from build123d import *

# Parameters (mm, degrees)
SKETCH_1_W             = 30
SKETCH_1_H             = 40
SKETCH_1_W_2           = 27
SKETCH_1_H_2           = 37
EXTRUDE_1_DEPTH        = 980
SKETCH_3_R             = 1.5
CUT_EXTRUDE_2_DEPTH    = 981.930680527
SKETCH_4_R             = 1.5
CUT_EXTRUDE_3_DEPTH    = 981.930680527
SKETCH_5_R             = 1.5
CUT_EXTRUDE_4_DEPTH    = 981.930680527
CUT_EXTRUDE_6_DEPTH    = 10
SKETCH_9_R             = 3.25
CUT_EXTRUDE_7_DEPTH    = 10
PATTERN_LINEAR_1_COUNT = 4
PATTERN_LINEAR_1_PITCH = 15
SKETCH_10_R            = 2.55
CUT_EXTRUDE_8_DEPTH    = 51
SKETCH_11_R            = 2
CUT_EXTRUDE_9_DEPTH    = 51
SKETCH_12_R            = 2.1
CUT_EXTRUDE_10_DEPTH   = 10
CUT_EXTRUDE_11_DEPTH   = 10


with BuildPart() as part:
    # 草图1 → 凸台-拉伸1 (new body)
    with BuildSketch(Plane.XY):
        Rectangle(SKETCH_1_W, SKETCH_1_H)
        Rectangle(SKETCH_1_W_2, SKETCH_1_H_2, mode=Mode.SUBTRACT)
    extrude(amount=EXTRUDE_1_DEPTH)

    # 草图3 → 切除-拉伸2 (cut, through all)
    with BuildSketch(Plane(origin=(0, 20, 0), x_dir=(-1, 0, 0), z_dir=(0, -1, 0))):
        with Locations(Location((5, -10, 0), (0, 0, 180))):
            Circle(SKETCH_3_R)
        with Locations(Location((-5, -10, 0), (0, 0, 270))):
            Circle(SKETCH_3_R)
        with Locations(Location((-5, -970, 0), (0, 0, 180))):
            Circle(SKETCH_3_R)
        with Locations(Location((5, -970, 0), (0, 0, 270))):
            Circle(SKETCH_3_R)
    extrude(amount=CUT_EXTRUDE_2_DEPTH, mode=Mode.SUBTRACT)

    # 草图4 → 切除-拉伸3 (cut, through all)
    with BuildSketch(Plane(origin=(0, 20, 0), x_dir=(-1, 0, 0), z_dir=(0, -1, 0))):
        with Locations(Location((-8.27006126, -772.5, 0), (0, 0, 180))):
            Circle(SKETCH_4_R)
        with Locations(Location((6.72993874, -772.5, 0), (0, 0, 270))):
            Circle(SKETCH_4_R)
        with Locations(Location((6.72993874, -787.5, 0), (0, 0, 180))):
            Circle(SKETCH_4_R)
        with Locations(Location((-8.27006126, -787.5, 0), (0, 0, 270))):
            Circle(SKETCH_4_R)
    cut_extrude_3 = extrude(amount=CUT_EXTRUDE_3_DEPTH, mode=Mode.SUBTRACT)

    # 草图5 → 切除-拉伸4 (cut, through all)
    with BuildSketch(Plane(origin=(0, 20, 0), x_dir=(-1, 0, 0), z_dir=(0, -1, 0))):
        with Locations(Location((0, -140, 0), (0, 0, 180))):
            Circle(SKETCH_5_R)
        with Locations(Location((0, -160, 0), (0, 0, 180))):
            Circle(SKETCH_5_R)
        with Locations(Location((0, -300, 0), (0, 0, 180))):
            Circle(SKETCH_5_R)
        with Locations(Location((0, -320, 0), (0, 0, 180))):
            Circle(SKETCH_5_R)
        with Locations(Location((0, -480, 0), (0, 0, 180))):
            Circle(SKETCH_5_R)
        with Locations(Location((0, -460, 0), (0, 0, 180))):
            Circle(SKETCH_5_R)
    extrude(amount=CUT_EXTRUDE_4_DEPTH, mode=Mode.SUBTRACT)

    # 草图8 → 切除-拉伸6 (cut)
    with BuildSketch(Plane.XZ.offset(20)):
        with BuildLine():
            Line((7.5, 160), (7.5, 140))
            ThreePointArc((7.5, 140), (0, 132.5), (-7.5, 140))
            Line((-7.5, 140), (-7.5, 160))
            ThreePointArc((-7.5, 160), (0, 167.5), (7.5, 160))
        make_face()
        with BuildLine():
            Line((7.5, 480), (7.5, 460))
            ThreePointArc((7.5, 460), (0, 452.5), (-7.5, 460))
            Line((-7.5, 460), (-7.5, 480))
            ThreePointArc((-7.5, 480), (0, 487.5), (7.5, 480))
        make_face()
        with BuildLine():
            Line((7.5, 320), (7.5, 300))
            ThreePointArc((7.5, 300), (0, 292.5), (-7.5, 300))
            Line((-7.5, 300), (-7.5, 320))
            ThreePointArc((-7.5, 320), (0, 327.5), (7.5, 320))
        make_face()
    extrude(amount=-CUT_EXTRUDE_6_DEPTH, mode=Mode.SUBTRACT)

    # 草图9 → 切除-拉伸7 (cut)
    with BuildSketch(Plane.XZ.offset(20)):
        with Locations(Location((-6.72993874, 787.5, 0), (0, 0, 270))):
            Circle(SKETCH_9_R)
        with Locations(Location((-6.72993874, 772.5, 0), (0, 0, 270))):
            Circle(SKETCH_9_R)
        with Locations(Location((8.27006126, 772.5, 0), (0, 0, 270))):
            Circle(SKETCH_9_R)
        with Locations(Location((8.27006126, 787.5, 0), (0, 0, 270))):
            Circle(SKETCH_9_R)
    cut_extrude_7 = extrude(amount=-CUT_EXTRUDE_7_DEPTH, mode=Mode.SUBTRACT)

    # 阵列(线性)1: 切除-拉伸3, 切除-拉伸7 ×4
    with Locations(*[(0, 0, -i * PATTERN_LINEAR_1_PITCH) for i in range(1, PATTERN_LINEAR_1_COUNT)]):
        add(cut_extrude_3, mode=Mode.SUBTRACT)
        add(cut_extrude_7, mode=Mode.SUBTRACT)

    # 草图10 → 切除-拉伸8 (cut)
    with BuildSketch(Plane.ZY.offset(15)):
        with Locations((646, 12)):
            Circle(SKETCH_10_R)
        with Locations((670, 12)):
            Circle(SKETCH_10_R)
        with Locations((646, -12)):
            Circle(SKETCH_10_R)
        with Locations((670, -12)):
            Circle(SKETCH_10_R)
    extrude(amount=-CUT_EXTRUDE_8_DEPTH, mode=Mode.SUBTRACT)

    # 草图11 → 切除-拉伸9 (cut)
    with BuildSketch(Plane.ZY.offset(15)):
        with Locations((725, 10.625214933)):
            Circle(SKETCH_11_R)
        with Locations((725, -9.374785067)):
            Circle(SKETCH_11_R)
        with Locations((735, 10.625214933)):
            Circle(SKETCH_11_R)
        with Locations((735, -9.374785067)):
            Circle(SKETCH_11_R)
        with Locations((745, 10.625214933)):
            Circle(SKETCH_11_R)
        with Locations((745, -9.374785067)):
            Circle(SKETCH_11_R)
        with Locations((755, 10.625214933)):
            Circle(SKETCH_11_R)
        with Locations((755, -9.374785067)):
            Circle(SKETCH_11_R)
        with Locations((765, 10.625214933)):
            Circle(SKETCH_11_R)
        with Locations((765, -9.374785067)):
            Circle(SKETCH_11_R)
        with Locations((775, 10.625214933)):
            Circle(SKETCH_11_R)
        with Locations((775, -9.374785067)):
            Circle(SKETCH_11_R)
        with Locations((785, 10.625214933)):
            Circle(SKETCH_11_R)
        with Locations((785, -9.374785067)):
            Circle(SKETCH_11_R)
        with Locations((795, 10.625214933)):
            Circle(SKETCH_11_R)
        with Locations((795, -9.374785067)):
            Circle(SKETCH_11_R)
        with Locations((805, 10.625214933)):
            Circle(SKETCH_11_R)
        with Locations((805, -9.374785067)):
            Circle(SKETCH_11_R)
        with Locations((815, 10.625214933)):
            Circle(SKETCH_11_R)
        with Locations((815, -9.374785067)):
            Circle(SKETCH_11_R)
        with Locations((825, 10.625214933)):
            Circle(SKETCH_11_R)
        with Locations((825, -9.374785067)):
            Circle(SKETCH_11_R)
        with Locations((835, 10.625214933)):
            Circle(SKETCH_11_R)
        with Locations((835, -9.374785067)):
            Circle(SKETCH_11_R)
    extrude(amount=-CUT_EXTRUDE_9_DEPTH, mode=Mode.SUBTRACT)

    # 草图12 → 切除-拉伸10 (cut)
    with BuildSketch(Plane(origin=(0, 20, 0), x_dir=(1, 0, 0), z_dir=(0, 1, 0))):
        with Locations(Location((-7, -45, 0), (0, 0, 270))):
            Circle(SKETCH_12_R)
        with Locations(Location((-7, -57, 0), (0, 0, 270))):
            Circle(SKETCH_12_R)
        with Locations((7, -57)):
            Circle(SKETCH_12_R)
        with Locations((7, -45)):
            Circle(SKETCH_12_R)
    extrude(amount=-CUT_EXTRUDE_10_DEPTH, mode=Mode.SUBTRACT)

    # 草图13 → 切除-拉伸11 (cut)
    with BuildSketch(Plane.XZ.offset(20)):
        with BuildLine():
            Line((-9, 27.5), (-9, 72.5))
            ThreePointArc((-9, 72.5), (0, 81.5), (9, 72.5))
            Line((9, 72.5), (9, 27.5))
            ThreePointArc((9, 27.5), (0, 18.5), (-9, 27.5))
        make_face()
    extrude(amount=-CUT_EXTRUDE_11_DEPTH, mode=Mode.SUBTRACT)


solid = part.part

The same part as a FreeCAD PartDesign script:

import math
import FreeCAD as App
import Part
import Sketcher

V = App.Vector
Q = App.Units.Quantity


def add_polygon(sketch, points):
    """Adds a closed chain of lines whose ends are joined by coincident constraints."""
    first, n = sketch.GeometryCount, len(points)
    for a, b in zip(points, points[1:] + points[:1]):
        sketch.addGeometry(Part.LineSegment(App.Vector(*a, 0), App.Vector(*b, 0)), False)
    for i in range(n):
        sketch.addConstraint(Sketcher.Constraint("Coincident", first + i, 2, first + (i + 1) % n, 1))

doc = App.newDocument("Part")
params = doc.addObject("Spreadsheet::Sheet", "Params")
for row, (alias, value) in enumerate([
    ("sketch1_width", "30 mm"),
    ("sketch1_width2", "27 mm"),
    ("sketch1_height", "40 mm"),
    ("sketch1_height2", "37 mm"),
    ("pad1_length", "980 mm"),
    ("sketch2_diameter", "3 mm"),
    ("sketch3_diameter", "3 mm"),
    ("sketch4_diameter", "3 mm"),
    ("sketch5_radius", "7.5 mm"),
    ("sketch5_height", "20 mm"),
    ("pocket4_length", "10 mm"),
    ("sketch6_diameter", "6.5 mm"),
    ("pocket5_length", "10 mm"),
    ("linearpattern_pitch", "15 mm"),
    ("sketch7_diameter", "5.1 mm"),
    ("pocket6_length", "51 mm"),
    ("sketch8_diameter", "4 mm"),
    ("pocket7_length", "51 mm"),
    ("sketch9_diameter", "4.2 mm"),
    ("pocket8_length", "10 mm"),
    ("sketch10_radius", "9 mm"),
    ("sketch10_height", "45 mm"),
    ("pocket9_length", "10 mm"),
], start=1):
    params.set(f"A{row}", alias)
    params.set(f"B{row}", "=" + value)
    params.setAlias(f"B{row}", alias)

body = doc.addObject("PartDesign::Body", "Body")

# Sketch on XY plane
sketch1 = body.newObject("Sketcher::SketchObject", "Sketch")
sketch1.AttachmentSupport = (doc.getObject("XY_Plane"), [""])
sketch1.MapMode = "FlatFace"
add_polygon(sketch1, [(-15, 20), (-15, -20), (15, -20), (15, 20)])  # lines 0-3
add_polygon(sketch1, [(14, -18), (-14, -18), (-14, 18), (14, 18)])  # lines 4-7
sketch1.addConstraint(Sketcher.Constraint("Vertical", 0))
sketch1.addConstraint(Sketcher.Constraint("Horizontal", 1))
sketch1.addConstraint(Sketcher.Constraint("Vertical", 2))
sketch1.addConstraint(Sketcher.Constraint("Horizontal", 3))
sketch1.addConstraint(Sketcher.Constraint("Horizontal", 4))
sketch1.addConstraint(Sketcher.Constraint("Vertical", 5))
sketch1.addConstraint(Sketcher.Constraint("Horizontal", 6))
sketch1.addConstraint(Sketcher.Constraint("Vertical", 7))
sketch1.addConstraint(Sketcher.Constraint("Symmetric", 0, 2, 2, 2, -1, 1))
sketch1.addConstraint(Sketcher.Constraint("Symmetric", 4, 2, 6, 2, -1, 1))
sketch1.addConstraint(Sketcher.Constraint("DistanceX", 1, 1, 1, 2, Q("30 mm")))
sketch1.addConstraint(Sketcher.Constraint("DistanceX", 4, 2, 4, 1, Q("27 mm")))
sketch1.addConstraint(Sketcher.Constraint("DistanceY", 0, 2, 0, 1, Q("40 mm")))
sketch1.addConstraint(Sketcher.Constraint("DistanceY", 5, 1, 5, 2, Q("37 mm")))
sketch1.setExpression("Constraints[18]", "Params.sketch1_width")
sketch1.setExpression("Constraints[19]", "Params.sketch1_width2")
sketch1.setExpression("Constraints[20]", "Params.sketch1_height")
sketch1.setExpression("Constraints[21]", "Params.sketch1_height2")
pad1 = body.newObject("PartDesign::Pad", "Pad")
pad1.Profile = sketch1
pad1.setExpression("Length", "Params.pad1_length")

# Sketch on XZ plane
sketch2 = body.newObject("Sketcher::SketchObject", "Sketch001")
sketch2.AttachmentSupport = (doc.getObject("XZ_Plane"), [""])
sketch2.MapMode = "FlatFace"
sketch2.AttachmentOffset = App.Placement(V(0, 0, -20), App.Rotation())
sketch2.addGeometry(Part.Circle(V(-5, 10, 0), V(0, 0, 1), 1.5), False)
sketch2.addGeometry(Part.Circle(V(5, 10, 0), V(0, 0, 1), 1.5), False)
sketch2.addGeometry(Part.Circle(V(5, 970, 0), V(0, 0, 1), 1.5), False)
sketch2.addGeometry(Part.Circle(V(-5, 970, 0), V(0, 0, 1), 1.5), False)
sketch2.addConstraint(Sketcher.Constraint("Equal", 0, 1))
sketch2.addConstraint(Sketcher.Constraint("Equal", 1, 2))
sketch2.addConstraint(Sketcher.Constraint("Equal", 2, 3))
sketch2.addConstraint(Sketcher.Constraint("Symmetric", 0, 3, 1, 3, -2))
sketch2.addConstraint(Sketcher.Constraint("Symmetric", 2, 3, 3, 3, -2))
sketch2.addConstraint(Sketcher.Constraint("Vertical", 1, 3, 2, 3))
sketch2.addConstraint(Sketcher.Constraint("Diameter", 0, Q("3 mm")))
sketch2.addConstraint(Sketcher.Constraint("DistanceX", 0, 3, -1, 1, Q("5 mm")))
sketch2.addConstraint(Sketcher.Constraint("DistanceY", -1, 1, 0, 3, Q("10 mm")))
sketch2.addConstraint(Sketcher.Constraint("DistanceY", -1, 1, 2, 3, Q("970 mm")))
sketch2.setExpression("Constraints[6]", "Params.sketch2_diameter")
pocket1 = body.newObject("PartDesign::Pocket", "Pocket")
pocket1.Profile = sketch2
pocket1.Type = "ThroughAll"
pocket1.Reversed = True

# Sketch on XZ plane
sketch3 = body.newObject("Sketcher::SketchObject", "Sketch002")
sketch3.AttachmentSupport = (doc.getObject("XZ_Plane"), [""])
sketch3.MapMode = "FlatFace"
sketch3.AttachmentOffset = App.Placement(V(0, 0, -20), App.Rotation())
sketch3.addGeometry(Part.Circle(V(8.3, 772.5, 0), V(0, 0, 1), 1.5), False)
sketch3.addGeometry(Part.Circle(V(-6.7, 772.5, 0), V(0, 0, 1), 1.5), False)
sketch3.addGeometry(Part.Circle(V(-6.7, 787.5, 0), V(0, 0, 1), 1.5), False)
sketch3.addGeometry(Part.Circle(V(8.3, 787.5, 0), V(0, 0, 1), 1.5), False)
sketch3.addConstraint(Sketcher.Constraint("Equal", 0, 1))
sketch3.addConstraint(Sketcher.Constraint("Equal", 1, 2))
sketch3.addConstraint(Sketcher.Constraint("Equal", 2, 3))
sketch3.addConstraint(Sketcher.Constraint("Horizontal", 0, 3, 1, 3))
sketch3.addConstraint(Sketcher.Constraint("Horizontal", 2, 3, 3, 3))
sketch3.addConstraint(Sketcher.Constraint("Vertical", 1, 3, 2, 3))
sketch3.addConstraint(Sketcher.Constraint("Vertical", 0, 3, 3, 3))
sketch3.addConstraint(Sketcher.Constraint("Diameter", 0, Q("3 mm")))
sketch3.addConstraint(Sketcher.Constraint("DistanceX", 1, 3, 0, 3, Q("15 mm")))
sketch3.addConstraint(Sketcher.Constraint("DistanceY", 1, 3, 2, 3, Q("15 mm")))
sketch3.addConstraint(Sketcher.Constraint("DistanceY", -1, 1, 0, 3, Q("772.5 mm")))
sketch3.addConstraint(Sketcher.Constraint("DistanceX", -1, 1, 0, 3, Q("8.270061 mm")))
sketch3.setExpression("Constraints[7]", "Params.sketch3_diameter")
pocket2 = body.newObject("PartDesign::Pocket", "Pocket001")
pocket2.Profile = sketch3
pocket2.Type = "ThroughAll"
pocket2.Reversed = True

# Sketch on XZ plane
sketch4 = body.newObject("Sketcher::SketchObject", "Sketch003")
sketch4.AttachmentSupport = (doc.getObject("XZ_Plane"), [""])
sketch4.MapMode = "FlatFace"
sketch4.AttachmentOffset = App.Placement(V(0, 0, -20), App.Rotation())
sketch4.addGeometry(Part.Circle(V(0, 140, 0), V(0, 0, 1), 1.5), False)
sketch4.addGeometry(Part.Circle(V(0, 160, 0), V(0, 0, 1), 1.5), False)
sketch4.addGeometry(Part.Circle(V(0, 300, 0), V(0, 0, 1), 1.5), False)
sketch4.addGeometry(Part.Circle(V(0, 320, 0), V(0, 0, 1), 1.5), False)
sketch4.addGeometry(Part.Circle(V(0, 480, 0), V(0, 0, 1), 1.5), False)
sketch4.addGeometry(Part.Circle(V(0, 460, 0), V(0, 0, 1), 1.5), False)
sketch4.addConstraint(Sketcher.Constraint("Equal", 0, 1))
sketch4.addConstraint(Sketcher.Constraint("Equal", 1, 2))
sketch4.addConstraint(Sketcher.Constraint("Equal", 2, 3))
sketch4.addConstraint(Sketcher.Constraint("Equal", 3, 4))
sketch4.addConstraint(Sketcher.Constraint("Equal", 4, 5))
sketch4.addConstraint(Sketcher.Constraint("PointOnObject", 0, 3, -2))
sketch4.addConstraint(Sketcher.Constraint("PointOnObject", 1, 3, -2))
sketch4.addConstraint(Sketcher.Constraint("PointOnObject", 2, 3, -2))
sketch4.addConstraint(Sketcher.Constraint("PointOnObject", 3, 3, -2))
sketch4.addConstraint(Sketcher.Constraint("PointOnObject", 4, 3, -2))
sketch4.addConstraint(Sketcher.Constraint("PointOnObject", 5, 3, -2))
sketch4.addConstraint(Sketcher.Constraint("Diameter", 0, Q("3 mm")))
sketch4.addConstraint(Sketcher.Constraint("DistanceY", -1, 1, 0, 3, Q("140 mm")))
sketch4.addConstraint(Sketcher.Constraint("DistanceY", -1, 1, 1, 3, Q("160 mm")))
sketch4.addConstraint(Sketcher.Constraint("DistanceY", -1, 1, 2, 3, Q("300 mm")))
sketch4.addConstraint(Sketcher.Constraint("DistanceY", -1, 1, 3, 3, Q("320 mm")))
sketch4.addConstraint(Sketcher.Constraint("DistanceY", -1, 1, 4, 3, Q("480 mm")))
sketch4.addConstraint(Sketcher.Constraint("DistanceY", -1, 1, 5, 3, Q("460 mm")))
sketch4.setExpression("Constraints[11]", "Params.sketch4_diameter")
pocket3 = body.newObject("PartDesign::Pocket", "Pocket002")
pocket3.Profile = sketch4
pocket3.Type = "ThroughAll"
pocket3.Reversed = True

# Sketch on XZ plane
sketch5 = body.newObject("Sketcher::SketchObject", "Sketch004")
sketch5.AttachmentSupport = (doc.getObject("XZ_Plane"), [""])
sketch5.MapMode = "FlatFace"
sketch5.AttachmentOffset = App.Placement(V(0, 0, 20), App.Rotation())
sketch5.addGeometry(Part.LineSegment(V(8, 140, 0), V(8, 160, 0)), False)
sketch5.addGeometry(Part.ArcOfCircle(Part.Circle(V(0, 160, 0), V(0, 0, 1), 8), math.radians(0), math.radians(180)), False)
sketch5.addGeometry(Part.LineSegment(V(-8, 160, 0), V(-8, 140, 0)), False)
sketch5.addGeometry(Part.ArcOfCircle(Part.Circle(V(0, 140, 0), V(0, 0, 1), 8), math.radians(180), math.radians(360)), False)
sketch5.addGeometry(Part.LineSegment(V(8, 460, 0), V(8, 480, 0)), False)
sketch5.addGeometry(Part.ArcOfCircle(Part.Circle(V(0, 480, 0), V(0, 0, 1), 8), math.radians(0), math.radians(180)), False)
sketch5.addGeometry(Part.LineSegment(V(-8, 480, 0), V(-8, 460, 0)), False)
sketch5.addGeometry(Part.ArcOfCircle(Part.Circle(V(0, 460, 0), V(0, 0, 1), 8), math.radians(180), math.radians(360)), False)
sketch5.addGeometry(Part.LineSegment(V(8, 300, 0), V(8, 320, 0)), False)
sketch5.addGeometry(Part.ArcOfCircle(Part.Circle(V(0, 320, 0), V(0, 0, 1), 8), math.radians(0), math.radians(180)), False)
sketch5.addGeometry(Part.LineSegment(V(-8, 320, 0), V(-8, 300, 0)), False)
sketch5.addGeometry(Part.ArcOfCircle(Part.Circle(V(0, 300, 0), V(0, 0, 1), 8), math.radians(180), math.radians(360)), False)
sketch5.addConstraint(Sketcher.Constraint("Tangent", 0, 2, 1, 1))
sketch5.addConstraint(Sketcher.Constraint("Tangent", 1, 2, 2, 1))
sketch5.addConstraint(Sketcher.Constraint("Tangent", 2, 2, 3, 1))
sketch5.addConstraint(Sketcher.Constraint("Tangent", 3, 2, 0, 1))
sketch5.addConstraint(Sketcher.Constraint("Tangent", 4, 2, 5, 1))
sketch5.addConstraint(Sketcher.Constraint("Tangent", 5, 2, 6, 1))
sketch5.addConstraint(Sketcher.Constraint("Tangent", 6, 2, 7, 1))
sketch5.addConstraint(Sketcher.Constraint("Tangent", 7, 2, 4, 1))
sketch5.addConstraint(Sketcher.Constraint("Tangent", 8, 2, 9, 1))
sketch5.addConstraint(Sketcher.Constraint("Tangent", 9, 2, 10, 1))
sketch5.addConstraint(Sketcher.Constraint("Tangent", 10, 2, 11, 1))
sketch5.addConstraint(Sketcher.Constraint("Tangent", 11, 2, 8, 1))
sketch5.addConstraint(Sketcher.Constraint("Vertical", 0))
sketch5.addConstraint(Sketcher.Constraint("Vertical", 2))
sketch5.addConstraint(Sketcher.Constraint("Vertical", 4))
sketch5.addConstraint(Sketcher.Constraint("Vertical", 6))
sketch5.addConstraint(Sketcher.Constraint("Vertical", 8))
sketch5.addConstraint(Sketcher.Constraint("Vertical", 10))
sketch5.addConstraint(Sketcher.Constraint("Equal", 3, 5))
sketch5.addConstraint(Sketcher.Constraint("Equal", 7, 9))
sketch5.addConstraint(Sketcher.Constraint("PointOnObject", 1, 3, -2))
sketch5.addConstraint(Sketcher.Constraint("PointOnObject", 5, 3, -2))
sketch5.addConstraint(Sketcher.Constraint("PointOnObject", 9, 3, -2))
sketch5.addConstraint(Sketcher.Constraint("Equal", 2, 4))
sketch5.addConstraint(Sketcher.Constraint("Equal", 6, 8))
sketch5.addConstraint(Sketcher.Constraint("Radius", 1, Q("7.5 mm")))
sketch5.addConstraint(Sketcher.Constraint("DistanceY", 0, 1, 0, 2, Q("20 mm")))
sketch5.addConstraint(Sketcher.Constraint("DistanceY", -1, 1, 1, 3, Q("160 mm")))
sketch5.addConstraint(Sketcher.Constraint("DistanceY", -1, 1, 5, 3, Q("480 mm")))
sketch5.addConstraint(Sketcher.Constraint("DistanceY", -1, 1, 9, 3, Q("320 mm")))
sketch5.setExpression("Constraints[25]", "Params.sketch5_radius")
sketch5.setExpression("Constraints[26]", "Params.sketch5_height")
pocket4 = body.newObject("PartDesign::Pocket", "Pocket003")
pocket4.Profile = sketch5
pocket4.setExpression("Length", "Params.pocket4_length")

# Sketch on XZ plane
sketch6 = body.newObject("Sketcher::SketchObject", "Sketch005")
sketch6.AttachmentSupport = (doc.getObject("XZ_Plane"), [""])
sketch6.MapMode = "FlatFace"
sketch6.AttachmentOffset = App.Placement(V(0, 0, 20), App.Rotation())
sketch6.addGeometry(Part.Circle(V(-6.7, 787.5, 0), V(0, 0, 1), 3.2), False)
sketch6.addGeometry(Part.Circle(V(-6.7, 772.5, 0), V(0, 0, 1), 3.2), False)
sketch6.addGeometry(Part.Circle(V(8.3, 772.5, 0), V(0, 0, 1), 3.2), False)
sketch6.addGeometry(Part.Circle(V(8.3, 787.5, 0), V(0, 0, 1), 3.2), False)
sketch6.addConstraint(Sketcher.Constraint("Equal", 0, 1))
sketch6.addConstraint(Sketcher.Constraint("Equal", 1, 2))
sketch6.addConstraint(Sketcher.Constraint("Equal", 2, 3))
sketch6.addConstraint(Sketcher.Constraint("Horizontal", 1, 3, 2, 3))
sketch6.addConstraint(Sketcher.Constraint("Horizontal", 0, 3, 3, 3))
sketch6.addConstraint(Sketcher.Constraint("Vertical", 0, 3, 1, 3))
sketch6.addConstraint(Sketcher.Constraint("Vertical", 2, 3, 3, 3))
sketch6.addConstraint(Sketcher.Constraint("Diameter", 0, Q("6.5 mm")))
sketch6.addConstraint(Sketcher.Constraint("DistanceY", 1, 3, 0, 3, Q("15 mm")))
sketch6.addConstraint(Sketcher.Constraint("DistanceX", 1, 3, 2, 3, Q("15 mm")))
sketch6.addConstraint(Sketcher.Constraint("DistanceY", -1, 1, 0, 3, Q("787.5 mm")))
sketch6.addConstraint(Sketcher.Constraint("DistanceX", 0, 3, -1, 1, Q("6.729939 mm")))
sketch6.setExpression("Constraints[7]", "Params.sketch6_diameter")
pocket5 = body.newObject("PartDesign::Pocket", "Pocket004")
pocket5.Profile = sketch6
pocket5.setExpression("Length", "Params.pocket5_length")
doc.recompute()

linearpattern = body.newObject("PartDesign::LinearPattern", "LinearPattern")
linearpattern.Originals = [pocket2, pocket5]
linearpattern.Direction = (doc.getObject("Z_Axis"), [""])
linearpattern.Mode = "offset"
linearpattern.setExpression("Offset", "Params.linearpattern_pitch")
linearpattern.Occurrences = 4
linearpattern.Reversed = True
body.Tip = linearpattern

# Sketch on YZ plane
sketch7 = body.newObject("Sketcher::SketchObject", "Sketch006")
sketch7.AttachmentSupport = (doc.getObject("YZ_Plane"), [""])
sketch7.MapMode = "FlatFace"
sketch7.AttachmentOffset = App.Placement(V(0, 0, -15), App.Rotation())
sketch7.addGeometry(Part.Circle(V(12, 646, 0), V(0, 0, 1), 2.5), False)
sketch7.addGeometry(Part.Circle(V(12, 670, 0), V(0, 0, 1), 2.5), False)
sketch7.addGeometry(Part.Circle(V(-12, 646, 0), V(0, 0, 1), 2.5), False)
sketch7.addGeometry(Part.Circle(V(-12, 670, 0), V(0, 0, 1), 2.5), False)
sketch7.addConstraint(Sketcher.Constraint("Equal", 0, 1))
sketch7.addConstraint(Sketcher.Constraint("Equal", 1, 2))
sketch7.addConstraint(Sketcher.Constraint("Equal", 2, 3))
sketch7.addConstraint(Sketcher.Constraint("Symmetric", 0, 3, 2, 3, -2))
sketch7.addConstraint(Sketcher.Constraint("Symmetric", 1, 3, 3, 3, -2))
sketch7.addConstraint(Sketcher.Constraint("Vertical", 0, 3, 1, 3))
sketch7.addConstraint(Sketcher.Constraint("Diameter", 0, Q("5.1 mm")))
sketch7.addConstraint(Sketcher.Constraint("DistanceX", -1, 1, 0, 3, Q("12 mm")))
sketch7.addConstraint(Sketcher.Constraint("DistanceY", -1, 1, 0, 3, Q("646 mm")))
sketch7.addConstraint(Sketcher.Constraint("DistanceY", -1, 1, 1, 3, Q("670 mm")))
sketch7.setExpression("Constraints[6]", "Params.sketch7_diameter")
pocket6 = body.newObject("PartDesign::Pocket", "Pocket005")
pocket6.Profile = sketch7
pocket6.setExpression("Length", "Params.pocket6_length")
pocket6.Reversed = True

# Sketch on YZ plane
sketch8 = body.newObject("Sketcher::SketchObject", "Sketch007")
sketch8.AttachmentSupport = (doc.getObject("YZ_Plane"), [""])
sketch8.MapMode = "FlatFace"
sketch8.AttachmentOffset = App.Placement(V(0, 0, -15), App.Rotation())
sketch8.addGeometry(Part.Circle(V(10.6, 725, 0), V(0, 0, 1), 2), False)
sketch8.addGeometry(Part.Circle(V(-9.4, 725, 0), V(0, 0, 1), 2), False)
sketch8.addGeometry(Part.Circle(V(10.6, 735, 0), V(0, 0, 1), 2), False)
sketch8.addGeometry(Part.Circle(V(-9.4, 735, 0), V(0, 0, 1), 2), False)
sketch8.addGeometry(Part.Circle(V(10.6, 745, 0), V(0, 0, 1), 2), False)
sketch8.addGeometry(Part.Circle(V(-9.4, 745, 0), V(0, 0, 1), 2), False)
sketch8.addGeometry(Part.Circle(V(10.6, 755, 0), V(0, 0, 1), 2), False)
sketch8.addGeometry(Part.Circle(V(-9.4, 755, 0), V(0, 0, 1), 2), False)
sketch8.addGeometry(Part.Circle(V(10.6, 765, 0), V(0, 0, 1), 2), False)
sketch8.addGeometry(Part.Circle(V(-9.4, 765, 0), V(0, 0, 1), 2), False)
sketch8.addGeometry(Part.Circle(V(10.6, 775, 0), V(0, 0, 1), 2), False)
sketch8.addGeometry(Part.Circle(V(-9.4, 775, 0), V(0, 0, 1), 2), False)
sketch8.addGeometry(Part.Circle(V(10.6, 785, 0), V(0, 0, 1), 2), False)
sketch8.addGeometry(Part.Circle(V(-9.4, 785, 0), V(0, 0, 1), 2), False)
sketch8.addGeometry(Part.Circle(V(10.6, 795, 0), V(0, 0, 1), 2), False)
sketch8.addGeometry(Part.Circle(V(-9.4, 795, 0), V(0, 0, 1), 2), False)
sketch8.addGeometry(Part.Circle(V(10.6, 805, 0), V(0, 0, 1), 2), False)
sketch8.addGeometry(Part.Circle(V(-9.4, 805, 0), V(0, 0, 1), 2), False)
sketch8.addGeometry(Part.Circle(V(10.6, 815, 0), V(0, 0, 1), 2), False)
sketch8.addGeometry(Part.Circle(V(-9.4, 815, 0), V(0, 0, 1), 2), False)
sketch8.addGeometry(Part.Circle(V(10.6, 825, 0), V(0, 0, 1), 2), False)
sketch8.addGeometry(Part.Circle(V(-9.4, 825, 0), V(0, 0, 1), 2), False)
sketch8.addGeometry(Part.Circle(V(10.6, 835, 0), V(0, 0, 1), 2), False)
sketch8.addGeometry(Part.Circle(V(-9.4, 835, 0), V(0, 0, 1), 2), False)
sketch8.addConstraint(Sketcher.Constraint("Equal", 0, 1))
sketch8.addConstraint(Sketcher.Constraint("Equal", 1, 2))
sketch8.addConstraint(Sketcher.Constraint("Equal", 2, 3))
sketch8.addConstraint(Sketcher.Constraint("Equal", 3, 4))
sketch8.addConstraint(Sketcher.Constraint("Equal", 4, 5))
sketch8.addConstraint(Sketcher.Constraint("Equal", 5, 6))
sketch8.addConstraint(Sketcher.Constraint("Equal", 6, 7))
sketch8.addConstraint(Sketcher.Constraint("Equal", 7, 8))
sketch8.addConstraint(Sketcher.Constraint("Equal", 8, 9))
sketch8.addConstraint(Sketcher.Constraint("Equal", 9, 10))
sketch8.addConstraint(Sketcher.Constraint("Equal", 10, 11))
sketch8.addConstraint(Sketcher.Constraint("Equal", 11, 12))
sketch8.addConstraint(Sketcher.Constraint("Equal", 12, 13))
sketch8.addConstraint(Sketcher.Constraint("Equal", 13, 14))
sketch8.addConstraint(Sketcher.Constraint("Equal", 14, 15))
sketch8.addConstraint(Sketcher.Constraint("Equal", 15, 16))
sketch8.addConstraint(Sketcher.Constraint("Equal", 16, 17))
sketch8.addConstraint(Sketcher.Constraint("Equal", 17, 18))
sketch8.addConstraint(Sketcher.Constraint("Equal", 18, 19))
sketch8.addConstraint(Sketcher.Constraint("Equal", 19, 20))
sketch8.addConstraint(Sketcher.Constraint("Equal", 20, 21))
sketch8.addConstraint(Sketcher.Constraint("Equal", 21, 22))
sketch8.addConstraint(Sketcher.Constraint("Equal", 22, 23))
sketch8.addConstraint(Sketcher.Constraint("Horizontal", 0, 3, 1, 3))
sketch8.addConstraint(Sketcher.Constraint("Horizontal", 2, 3, 3, 3))
sketch8.addConstraint(Sketcher.Constraint("Horizontal", 4, 3, 5, 3))
sketch8.addConstraint(Sketcher.Constraint("Horizontal", 6, 3, 7, 3))
sketch8.addConstraint(Sketcher.Constraint("Horizontal", 8, 3, 9, 3))
sketch8.addConstraint(Sketcher.Constraint("Horizontal", 10, 3, 11, 3))
sketch8.addConstraint(Sketcher.Constraint("Horizontal", 12, 3, 13, 3))
sketch8.addConstraint(Sketcher.Constraint("Horizontal", 14, 3, 15, 3))
sketch8.addConstraint(Sketcher.Constraint("Horizontal", 16, 3, 17, 3))
sketch8.addConstraint(Sketcher.Constraint("Horizontal", 18, 3, 19, 3))
sketch8.addConstraint(Sketcher.Constraint("Horizontal", 20, 3, 21, 3))
sketch8.addConstraint(Sketcher.Constraint("Horizontal", 22, 3, 23, 3))
sketch8.addConstraint(Sketcher.Constraint("Vertical", 0, 3, 2, 3))
sketch8.addConstraint(Sketcher.Constraint("Vertical", 1, 3, 3, 3))
sketch8.addConstraint(Sketcher.Constraint("Vertical", 2, 3, 4, 3))
sketch8.addConstraint(Sketcher.Constraint("Vertical", 3, 3, 5, 3))
sketch8.addConstraint(Sketcher.Constraint("Vertical", 4, 3, 6, 3))
sketch8.addConstraint(Sketcher.Constraint("Vertical", 5, 3, 7, 3))
sketch8.addConstraint(Sketcher.Constraint("Vertical", 6, 3, 8, 3))
sketch8.addConstraint(Sketcher.Constraint("Vertical", 7, 3, 9, 3))
sketch8.addConstraint(Sketcher.Constraint("Vertical", 8, 3, 10, 3))
sketch8.addConstraint(Sketcher.Constraint("Vertical", 9, 3, 11, 3))
sketch8.addConstraint(Sketcher.Constraint("Vertical", 10, 3, 12, 3))
sketch8.addConstraint(Sketcher.Constraint("Vertical", 11, 3, 13, 3))
sketch8.addConstraint(Sketcher.Constraint("Vertical", 12, 3, 14, 3))
sketch8.addConstraint(Sketcher.Constraint("Vertical", 13, 3, 15, 3))
sketch8.addConstraint(Sketcher.Constraint("Vertical", 14, 3, 16, 3))
sketch8.addConstraint(Sketcher.Constraint("Vertical", 15, 3, 17, 3))
sketch8.addConstraint(Sketcher.Constraint("Vertical", 16, 3, 18, 3))
sketch8.addConstraint(Sketcher.Constraint("Vertical", 17, 3, 19, 3))
sketch8.addConstraint(Sketcher.Constraint("Vertical", 18, 3, 20, 3))
sketch8.addConstraint(Sketcher.Constraint("Vertical", 19, 3, 21, 3))
sketch8.addConstraint(Sketcher.Constraint("Vertical", 20, 3, 22, 3))
sketch8.addConstraint(Sketcher.Constraint("Vertical", 21, 3, 23, 3))
sketch8.addConstraint(Sketcher.Constraint("Diameter", 0, Q("4 mm")))
sketch8.addConstraint(Sketcher.Constraint("DistanceY", -1, 1, 0, 3, Q("725 mm")))
sketch8.addConstraint(Sketcher.Constraint("DistanceY", -1, 1, 2, 3, Q("735 mm")))
sketch8.addConstraint(Sketcher.Constraint("DistanceY", -1, 1, 4, 3, Q("745 mm")))
sketch8.addConstraint(Sketcher.Constraint("DistanceY", -1, 1, 6, 3, Q("755 mm")))
sketch8.addConstraint(Sketcher.Constraint("DistanceY", -1, 1, 8, 3, Q("765 mm")))
sketch8.addConstraint(Sketcher.Constraint("DistanceY", -1, 1, 10, 3, Q("775 mm")))
sketch8.addConstraint(Sketcher.Constraint("DistanceY", -1, 1, 12, 3, Q("785 mm")))
sketch8.addConstraint(Sketcher.Constraint("DistanceY", -1, 1, 14, 3, Q("795 mm")))
sketch8.addConstraint(Sketcher.Constraint("DistanceY", -1, 1, 16, 3, Q("805 mm")))
sketch8.addConstraint(Sketcher.Constraint("DistanceY", -1, 1, 18, 3, Q("815 mm")))
sketch8.addConstraint(Sketcher.Constraint("DistanceY", -1, 1, 20, 3, Q("825 mm")))
sketch8.addConstraint(Sketcher.Constraint("DistanceY", -1, 1, 22, 3, Q("835 mm")))
sketch8.addConstraint(Sketcher.Constraint("DistanceX", 1, 3, 0, 3, Q("20 mm")))
sketch8.addConstraint(Sketcher.Constraint("DistanceX", -1, 1, 0, 3, Q("10.625215 mm")))
sketch8.setExpression("Constraints[57]", "Params.sketch8_diameter")
pocket7 = body.newObject("PartDesign::Pocket", "Pocket006")
pocket7.Profile = sketch8
pocket7.setExpression("Length", "Params.pocket7_length")
pocket7.Reversed = True

# Sketch on XZ plane
sketch9 = body.newObject("Sketcher::SketchObject", "Sketch008")
sketch9.AttachmentSupport = (doc.getObject("XZ_Plane"), [""])
sketch9.MapMode = "FlatFace"
sketch9.AttachmentOffset = App.Placement(V(0, 0, -20), App.Rotation())
sketch9.addGeometry(Part.Circle(V(-7, 45, 0), V(0, 0, 1), 2.1), False)
sketch9.addGeometry(Part.Circle(V(-7, 57, 0), V(0, 0, 1), 2.1), False)
sketch9.addGeometry(Part.Circle(V(7, 57, 0), V(0, 0, 1), 2.1), False)
sketch9.addGeometry(Part.Circle(V(7, 45, 0), V(0, 0, 1), 2.1), False)
sketch9.addConstraint(Sketcher.Constraint("Equal", 0, 1))
sketch9.addConstraint(Sketcher.Constraint("Equal", 1, 2))
sketch9.addConstraint(Sketcher.Constraint("Equal", 2, 3))
sketch9.addConstraint(Sketcher.Constraint("Symmetric", 1, 3, 2, 3, -2))
sketch9.addConstraint(Sketcher.Constraint("Symmetric", 0, 3, 3, 3, -2))
sketch9.addConstraint(Sketcher.Constraint("Vertical", 0, 3, 1, 3))
sketch9.addConstraint(Sketcher.Constraint("Diameter", 0, Q("4.2 mm")))
sketch9.addConstraint(Sketcher.Constraint("DistanceX", 0, 3, -1, 1, Q("7 mm")))
sketch9.addConstraint(Sketcher.Constraint("DistanceY", -1, 1, 0, 3, Q("45 mm")))
sketch9.addConstraint(Sketcher.Constraint("DistanceY", -1, 1, 1, 3, Q("57 mm")))
sketch9.setExpression("Constraints[6]", "Params.sketch9_diameter")
pocket8 = body.newObject("PartDesign::Pocket", "Pocket007")
pocket8.Profile = sketch9
pocket8.setExpression("Length", "Params.pocket8_length")
pocket8.Reversed = True

# Sketch on XZ plane
sketch10 = body.newObject("Sketcher::SketchObject", "Sketch009")
sketch10.AttachmentSupport = (doc.getObject("XZ_Plane"), [""])
sketch10.MapMode = "FlatFace"
sketch10.AttachmentOffset = App.Placement(V(0, 0, 20), App.Rotation())
sketch10.addGeometry(Part.LineSegment(V(-9, 72, 0), V(-9, 28, 0)), False)
sketch10.addGeometry(Part.ArcOfCircle(Part.Circle(V(0, 28, 0), V(0, 0, 1), 9), math.radians(180), math.radians(360)), False)
sketch10.addGeometry(Part.LineSegment(V(9, 28, 0), V(9, 72, 0)), False)
sketch10.addGeometry(Part.ArcOfCircle(Part.Circle(V(0, 72, 0), V(0, 0, 1), 9), math.radians(0), math.radians(180)), False)
sketch10.addConstraint(Sketcher.Constraint("Tangent", 0, 2, 1, 1))
sketch10.addConstraint(Sketcher.Constraint("Tangent", 1, 2, 2, 1))
sketch10.addConstraint(Sketcher.Constraint("Tangent", 2, 2, 3, 1))
sketch10.addConstraint(Sketcher.Constraint("Tangent", 3, 2, 0, 1))
sketch10.addConstraint(Sketcher.Constraint("Vertical", 0))
sketch10.addConstraint(Sketcher.Constraint("Vertical", 2))
sketch10.addConstraint(Sketcher.Constraint("PointOnObject", 1, 3, -2))
sketch10.addConstraint(Sketcher.Constraint("Radius", 1, Q("9 mm")))
sketch10.addConstraint(Sketcher.Constraint("DistanceY", 0, 2, 0, 1, Q("45 mm")))
sketch10.addConstraint(Sketcher.Constraint("DistanceY", -1, 1, 1, 3, Q("27.5 mm")))
sketch10.setExpression("Constraints[7]", "Params.sketch10_radius")
sketch10.setExpression("Constraints[8]", "Params.sketch10_height")
pocket9 = body.newObject("PartDesign::Pocket", "Pocket008")
pocket9.Profile = sketch10
pocket9.setExpression("Length", "Params.pocket9_length")

doc.recompute()
